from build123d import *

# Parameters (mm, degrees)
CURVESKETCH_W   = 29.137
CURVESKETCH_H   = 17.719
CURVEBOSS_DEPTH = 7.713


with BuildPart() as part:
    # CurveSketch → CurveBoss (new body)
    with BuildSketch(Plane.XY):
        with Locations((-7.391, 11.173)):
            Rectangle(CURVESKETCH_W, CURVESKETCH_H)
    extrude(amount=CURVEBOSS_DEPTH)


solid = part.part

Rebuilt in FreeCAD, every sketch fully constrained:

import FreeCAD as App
import Part
import Sketcher

doc = App.newDocument("Part")
params = doc.addObject("Spreadsheet::Sheet", "Params")
for row, (alias, value) in enumerate([
    ("pad1_length", "7.713 mm"),
], start=1):
    params.set(f"A{row}", alias)
    params.set(f"B{row}", "=" + value)
    params.setAlias(f"B{row}", alias)

body = doc.addObject("PartDesign::Body", "Body")

# Sketch on XY plane
sketch1 = doc.addObject("Sketcher::SketchObject", "Sketch")
body.addObject(sketch1)
sketch1.AttachmentSupport = (doc.XY_Plane, [""])
sketch1.MapMode = "FlatFace"
sketch1.addGeometry([
    Part.LineSegment(App.Vector(-21.9595, 20.0325, 0), App.Vector(-21.9595, 2.3135, 0)),
    Part.LineSegment(App.Vector(-21.9595, 2.3135, 0), App.Vector(7.1775, 2.3135, 0)),
    Part.LineSegment(App.Vector(7.1775, 2.3135, 0), App.Vector(7.1775, 20.0325, 0)),
    Part.LineSegment(App.Vector(7.1775, 20.0325, 0), App.Vector(-21.9595, 20.0325, 0)),
], False)
sketch1.addConstraint([
    Sketcher.Constraint("Coincident", 0, 2, 1, 1),
    Sketcher.Constraint("Coincident", 1, 2, 2, 1),
    Sketcher.Constraint("Coincident", 2, 2, 3, 1),
    Sketcher.Constraint("Coincident", 3, 2, 0, 1),
    Sketcher.Constraint("Vertical", 0),
    Sketcher.Constraint("Horizontal", 1),
    Sketcher.Constraint("Vertical", 2),
    Sketcher.Constraint("Horizontal", 3),
    Sketcher.Constraint("DistanceX", 1, 1, 1, 2, 29.137),
    Sketcher.Constraint("DistanceY", 0, 2, 0, 1, 17.719),
    Sketcher.Constraint("DistanceX", 0, 2, -1, 1, 21.9595),
    Sketcher.Constraint("DistanceY", -1, 1, 0, 2, 2.3135),
])
pad1 = doc.addObject("PartDesign::Pad", "Pad")
body.addObject(pad1)
pad1.Profile = sketch1
pad1.setExpression("Length", "Params.pad1_length")

doc.recompute()
